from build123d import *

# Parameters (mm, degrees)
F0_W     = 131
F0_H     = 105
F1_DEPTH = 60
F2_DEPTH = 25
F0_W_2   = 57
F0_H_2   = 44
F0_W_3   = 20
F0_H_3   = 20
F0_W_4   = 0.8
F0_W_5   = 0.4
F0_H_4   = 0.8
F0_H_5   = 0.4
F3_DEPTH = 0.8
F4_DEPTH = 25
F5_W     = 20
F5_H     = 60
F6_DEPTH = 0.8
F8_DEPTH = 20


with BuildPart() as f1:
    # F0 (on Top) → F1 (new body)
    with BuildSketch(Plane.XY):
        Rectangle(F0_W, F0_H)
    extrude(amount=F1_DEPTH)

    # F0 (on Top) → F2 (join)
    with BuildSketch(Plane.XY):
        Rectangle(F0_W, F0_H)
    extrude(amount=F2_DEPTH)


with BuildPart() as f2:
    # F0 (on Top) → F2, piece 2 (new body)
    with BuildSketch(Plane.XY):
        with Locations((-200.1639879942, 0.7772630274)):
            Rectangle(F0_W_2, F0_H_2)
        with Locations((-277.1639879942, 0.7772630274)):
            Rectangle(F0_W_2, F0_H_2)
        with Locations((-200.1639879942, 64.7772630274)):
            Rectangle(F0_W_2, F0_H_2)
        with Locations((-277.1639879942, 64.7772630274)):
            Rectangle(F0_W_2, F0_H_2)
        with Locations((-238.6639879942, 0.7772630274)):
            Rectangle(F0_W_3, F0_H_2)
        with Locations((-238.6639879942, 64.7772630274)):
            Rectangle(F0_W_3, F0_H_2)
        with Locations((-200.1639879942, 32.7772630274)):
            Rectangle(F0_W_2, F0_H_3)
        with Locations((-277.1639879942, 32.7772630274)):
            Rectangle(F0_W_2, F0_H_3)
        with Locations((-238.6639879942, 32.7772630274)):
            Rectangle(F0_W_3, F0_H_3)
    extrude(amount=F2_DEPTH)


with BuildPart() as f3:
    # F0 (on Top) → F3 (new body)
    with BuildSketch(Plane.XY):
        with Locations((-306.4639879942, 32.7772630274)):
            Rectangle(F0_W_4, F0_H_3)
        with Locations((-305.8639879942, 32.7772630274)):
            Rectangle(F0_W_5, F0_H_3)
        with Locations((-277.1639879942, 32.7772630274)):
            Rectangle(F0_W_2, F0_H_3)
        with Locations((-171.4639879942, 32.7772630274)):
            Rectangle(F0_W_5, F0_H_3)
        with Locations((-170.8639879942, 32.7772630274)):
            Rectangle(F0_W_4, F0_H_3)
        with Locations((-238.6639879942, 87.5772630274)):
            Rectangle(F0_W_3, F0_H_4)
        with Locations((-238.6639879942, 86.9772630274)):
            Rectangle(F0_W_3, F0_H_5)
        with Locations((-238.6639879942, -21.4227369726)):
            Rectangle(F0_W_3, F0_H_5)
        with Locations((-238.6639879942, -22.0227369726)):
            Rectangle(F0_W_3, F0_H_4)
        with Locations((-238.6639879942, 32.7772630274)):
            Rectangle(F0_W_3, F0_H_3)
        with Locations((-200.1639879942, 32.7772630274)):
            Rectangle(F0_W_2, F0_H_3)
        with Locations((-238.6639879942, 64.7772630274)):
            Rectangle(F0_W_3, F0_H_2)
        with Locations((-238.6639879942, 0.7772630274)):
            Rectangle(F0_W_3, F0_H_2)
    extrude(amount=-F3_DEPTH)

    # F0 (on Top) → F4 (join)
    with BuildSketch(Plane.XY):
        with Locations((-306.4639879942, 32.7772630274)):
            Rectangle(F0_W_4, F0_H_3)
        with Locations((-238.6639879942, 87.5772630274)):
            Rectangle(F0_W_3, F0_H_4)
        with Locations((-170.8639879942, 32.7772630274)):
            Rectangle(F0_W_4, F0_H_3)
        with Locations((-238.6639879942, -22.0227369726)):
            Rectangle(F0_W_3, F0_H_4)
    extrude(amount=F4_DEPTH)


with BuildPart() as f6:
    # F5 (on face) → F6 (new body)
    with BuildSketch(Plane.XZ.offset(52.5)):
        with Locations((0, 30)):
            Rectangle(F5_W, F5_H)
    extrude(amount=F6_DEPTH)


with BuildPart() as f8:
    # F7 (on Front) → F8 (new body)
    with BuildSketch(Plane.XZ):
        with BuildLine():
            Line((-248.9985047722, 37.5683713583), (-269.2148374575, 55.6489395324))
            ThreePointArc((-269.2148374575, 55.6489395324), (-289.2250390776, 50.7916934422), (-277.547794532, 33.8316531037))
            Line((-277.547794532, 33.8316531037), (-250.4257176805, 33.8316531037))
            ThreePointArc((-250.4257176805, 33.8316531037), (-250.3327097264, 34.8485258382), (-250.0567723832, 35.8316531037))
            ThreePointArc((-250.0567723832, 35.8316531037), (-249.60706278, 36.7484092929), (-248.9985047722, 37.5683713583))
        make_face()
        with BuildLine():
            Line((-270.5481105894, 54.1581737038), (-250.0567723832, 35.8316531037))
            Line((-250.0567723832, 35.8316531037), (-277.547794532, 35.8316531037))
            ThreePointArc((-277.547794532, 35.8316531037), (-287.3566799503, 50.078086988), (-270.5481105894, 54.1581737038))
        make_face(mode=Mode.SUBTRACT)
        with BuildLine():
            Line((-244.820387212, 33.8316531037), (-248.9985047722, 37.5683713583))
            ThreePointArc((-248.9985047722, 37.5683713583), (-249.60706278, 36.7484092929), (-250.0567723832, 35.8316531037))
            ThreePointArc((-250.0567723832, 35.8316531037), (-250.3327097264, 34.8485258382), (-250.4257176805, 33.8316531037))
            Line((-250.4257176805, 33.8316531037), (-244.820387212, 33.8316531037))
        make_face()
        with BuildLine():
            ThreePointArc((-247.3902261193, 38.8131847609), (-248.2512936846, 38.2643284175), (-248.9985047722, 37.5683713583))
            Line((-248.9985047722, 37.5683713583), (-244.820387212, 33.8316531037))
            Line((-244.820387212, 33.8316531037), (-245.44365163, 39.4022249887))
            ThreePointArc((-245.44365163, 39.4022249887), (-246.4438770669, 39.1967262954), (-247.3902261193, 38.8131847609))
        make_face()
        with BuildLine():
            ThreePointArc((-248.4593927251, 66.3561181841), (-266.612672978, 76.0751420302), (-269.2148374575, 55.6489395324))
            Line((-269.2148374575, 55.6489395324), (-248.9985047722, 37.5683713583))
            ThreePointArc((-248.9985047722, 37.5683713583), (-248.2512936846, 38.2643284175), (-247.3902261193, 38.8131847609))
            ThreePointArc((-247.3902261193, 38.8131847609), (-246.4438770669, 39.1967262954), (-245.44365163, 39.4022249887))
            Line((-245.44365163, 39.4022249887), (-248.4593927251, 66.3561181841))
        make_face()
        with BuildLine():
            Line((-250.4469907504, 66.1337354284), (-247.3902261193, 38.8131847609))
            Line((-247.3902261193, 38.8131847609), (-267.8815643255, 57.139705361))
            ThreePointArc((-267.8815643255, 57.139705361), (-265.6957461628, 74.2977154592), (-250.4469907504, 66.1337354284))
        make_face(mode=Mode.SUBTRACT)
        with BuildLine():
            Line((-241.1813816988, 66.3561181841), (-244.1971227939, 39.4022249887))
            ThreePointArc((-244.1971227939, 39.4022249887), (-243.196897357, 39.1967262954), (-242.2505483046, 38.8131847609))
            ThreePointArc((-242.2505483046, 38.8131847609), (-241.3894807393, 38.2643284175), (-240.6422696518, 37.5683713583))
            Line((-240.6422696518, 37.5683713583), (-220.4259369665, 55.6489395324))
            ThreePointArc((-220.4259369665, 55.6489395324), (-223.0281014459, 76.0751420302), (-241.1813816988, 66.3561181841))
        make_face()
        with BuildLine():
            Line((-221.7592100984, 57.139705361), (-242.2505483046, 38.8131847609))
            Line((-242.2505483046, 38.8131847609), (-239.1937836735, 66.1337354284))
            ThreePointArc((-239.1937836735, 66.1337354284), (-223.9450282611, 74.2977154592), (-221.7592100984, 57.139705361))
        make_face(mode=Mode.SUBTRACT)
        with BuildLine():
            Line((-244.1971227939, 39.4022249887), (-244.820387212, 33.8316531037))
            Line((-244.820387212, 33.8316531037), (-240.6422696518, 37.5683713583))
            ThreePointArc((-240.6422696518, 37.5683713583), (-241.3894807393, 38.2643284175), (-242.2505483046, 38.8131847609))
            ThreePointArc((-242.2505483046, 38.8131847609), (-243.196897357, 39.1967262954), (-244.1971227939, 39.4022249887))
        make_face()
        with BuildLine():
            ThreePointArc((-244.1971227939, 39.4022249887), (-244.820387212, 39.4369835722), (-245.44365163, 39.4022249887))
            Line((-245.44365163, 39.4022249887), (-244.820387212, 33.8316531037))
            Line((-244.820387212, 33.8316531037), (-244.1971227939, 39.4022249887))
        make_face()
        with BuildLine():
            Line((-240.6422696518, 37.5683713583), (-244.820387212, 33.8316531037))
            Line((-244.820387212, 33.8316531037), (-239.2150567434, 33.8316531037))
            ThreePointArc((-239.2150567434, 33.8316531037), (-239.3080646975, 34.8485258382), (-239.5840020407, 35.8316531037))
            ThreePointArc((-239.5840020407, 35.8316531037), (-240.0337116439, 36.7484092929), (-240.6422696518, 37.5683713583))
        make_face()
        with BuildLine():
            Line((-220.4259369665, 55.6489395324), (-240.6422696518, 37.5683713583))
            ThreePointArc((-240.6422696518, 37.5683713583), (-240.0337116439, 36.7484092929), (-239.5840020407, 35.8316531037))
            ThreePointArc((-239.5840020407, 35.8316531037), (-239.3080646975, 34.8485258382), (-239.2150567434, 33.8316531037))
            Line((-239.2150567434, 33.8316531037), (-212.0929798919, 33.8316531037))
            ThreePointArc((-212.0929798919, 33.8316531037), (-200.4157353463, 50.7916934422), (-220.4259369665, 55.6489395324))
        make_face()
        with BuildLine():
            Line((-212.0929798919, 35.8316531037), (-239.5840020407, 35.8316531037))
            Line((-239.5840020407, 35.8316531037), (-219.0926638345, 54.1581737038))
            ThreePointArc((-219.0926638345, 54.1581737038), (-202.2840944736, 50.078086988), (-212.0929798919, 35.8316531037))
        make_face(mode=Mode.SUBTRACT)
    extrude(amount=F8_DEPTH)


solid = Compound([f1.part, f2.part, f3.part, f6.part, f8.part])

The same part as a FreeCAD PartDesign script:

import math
import FreeCAD as App
import Part
import Sketcher

V = App.Vector


def add_polygon(sketch, points):
    """Adds a closed chain of lines whose ends are joined by coincident constraints."""
    first, n = sketch.GeometryCount, len(points)
    for a, b in zip(points, points[1:] + points[:1]):
        sketch.addGeometry(Part.LineSegment(App.Vector(*a, 0), App.Vector(*b, 0)), False)
    for i in range(n):
        sketch.addConstraint(Sketcher.Constraint("Coincident", first + i, 2, first + (i + 1) % n, 1))

doc = App.newDocument("Part")
params = doc.addObject("Spreadsheet::Sheet", "Params")
for row, (alias, value) in enumerate([
    ("sketch1_width", "131 mm"),
    ("sketch1_height", "105 mm"),
    ("pad1_length", "60 mm"),
    ("sketch2_width", "131 mm"),
    ("sketch2_height", "105 mm"),
    ("pad2_length", "25 mm"),
    ("sketch3_width", "134 mm"),
    ("sketch3_height", "108 mm"),
    ("pad3_length", "25 mm"),
    ("sketch4_width", "20 mm"),
    ("sketch4_width2", "58.2 mm"),
    ("sketch4_height", "45.2 mm"),
    ("pad4_length", "0.8 mm"),
    ("sketch5_width", "20 mm"),
    ("sketch5_width2", "0.8 mm"),
    ("pad5_length", "25 mm"),
    ("sketch6_width", "20 mm"),
    ("sketch6_height", "60 mm"),
    ("pad6_length", "0.8 mm"),
    ("sketch7_radius", "12.5 mm"),
    ("sketch7_radius2", "10.5 mm"),
    ("pad7_length", "20 mm"),
], start=1):
    params.set(f"A{row}", alias)
    params.set(f"B{row}", "=" + value)
    params.setAlias(f"B{row}", alias)

body = doc.addObject("PartDesign::Body", "Body")

# Sketch on XY plane
sketch1 = doc.addObject("Sketcher::SketchObject", "Sketch")
body.addObject(sketch1)
sketch1.AttachmentSupport = (doc.XY_Plane, [""])
sketch1.MapMode = "FlatFace"
add_polygon(sketch1, [(-66, 52), (-66, -52), (66, -52), (66, 52)])  # lines 0-3
sketch1.addConstraint(Sketcher.Constraint("Vertical", 0))
sketch1.addConstraint(Sketcher.Constraint("Horizontal", 1))
sketch1.addConstraint(Sketcher.Constraint("Vertical", 2))
sketch1.addConstraint(Sketcher.Constraint("Horizontal", 3))
sketch1.addConstraint(Sketcher.Constraint("Symmetric", 0, 2, 2, 2, -1, 1))
sketch1.addConstraint(Sketcher.Constraint("DistanceX", 1, 1, 1, 2, 131.0))
sketch1.addConstraint(Sketcher.Constraint("DistanceY", 0, 2, 0, 1, 105.0))
sketch1.setExpression("Constraints[9]", "Params.sketch1_width")
sketch1.setExpression("Constraints[10]", "Params.sketch1_height")
pad1 = doc.addObject("PartDesign::Pad", "Pad")
body.addObject(pad1)
pad1.Profile = sketch1
pad1.setExpression("Length", "Params.pad1_length")

# Sketch on XY plane
sketch2 = doc.addObject("Sketcher::SketchObject", "Sketch001")
body.addObject(sketch2)
sketch2.AttachmentSupport = (doc.XY_Plane, [""])
sketch2.MapMode = "FlatFace"
add_polygon(sketch2, [(-66, 52), (-66, -52), (66, -52), (66, 52)])  # lines 0-3
sketch2.addConstraint(Sketcher.Constraint("Vertical", 0))
sketch2.addConstraint(Sketcher.Constraint("Horizontal", 1))
sketch2.addConstraint(Sketcher.Constraint("Vertical", 2))
sketch2.addConstraint(Sketcher.Constraint("Horizontal", 3))
sketch2.addConstraint(Sketcher.Constraint("Symmetric", 0, 2, 2, 2, -1, 1))
sketch2.addConstraint(Sketcher.Constraint("DistanceX", 1, 1, 1, 2, 131.0))
sketch2.addConstraint(Sketcher.Constraint("DistanceY", 0, 2, 0, 1, 105.0))
sketch2.setExpression("Constraints[9]", "Params.sketch2_width")
sketch2.setExpression("Constraints[10]", "Params.sketch2_height")
pad2 = doc.addObject("PartDesign::Pad", "Pad001")
body.addObject(pad2)
pad2.Profile = sketch2
pad2.setExpression("Length", "Params.pad2_length")
body2 = doc.addObject("PartDesign::Body", "Body001")

# Sketch on XY plane
sketch3 = doc.addObject("Sketcher::SketchObject", "Sketch002")
body2.addObject(sketch3)
sketch3.AttachmentSupport = (doc.getObject("XY_Plane001"), [""])
sketch3.MapMode = "FlatFace"
add_polygon(sketch3, [(-172, -21), (-172, 87), (-306, 87), (-306, -21)])  # lines 0-3
sketch3.addConstraint(Sketcher.Constraint("Vertical", 0))
sketch3.addConstraint(Sketcher.Constraint("Horizontal", 1))
sketch3.addConstraint(Sketcher.Constraint("Vertical", 2))
sketch3.addConstraint(Sketcher.Constraint("Horizontal", 3))
sketch3.addConstraint(Sketcher.Constraint("DistanceX", 1, 2, 1, 1, 134.0))
sketch3.addConstraint(Sketcher.Constraint("DistanceY", 0, 1, 0, 2, 108.0))
sketch3.addConstraint(Sketcher.Constraint("DistanceX", 0, 2, -1, 1, 171.663988))
sketch3.addConstraint(Sketcher.Constraint("DistanceY", -1, 1, 0, 2, 86.777263))
sketch3.setExpression("Constraints[8]", "Params.sketch3_width")
sketch3.setExpression("Constraints[9]", "Params.sketch3_height")
pad3 = doc.addObject("PartDesign::Pad", "Pad002")
body2.addObject(pad3)
pad3.Profile = sketch3
pad3.setExpression("Length", "Params.pad3_length")
body3 = doc.addObject("PartDesign::Body", "Body002")

# Sketch on XY plane
sketch4 = doc.addObject("Sketcher::SketchObject", "Sketch003")
body3.addObject(sketch4)
sketch4.AttachmentSupport = (doc.getObject("XY_Plane002"), [""])
sketch4.MapMode = "FlatFace"
add_polygon(sketch4, [(-307, 43), (-307, 23), (-249, 23), (-249, -22), (-229, -22), (-229, 23), (-170, 23), (-170, 43), (-229, 43), (-229, 88), (-249, 88), (-249, 43)])  # lines 0-11
sketch4.addConstraint(Sketcher.Constraint("Vertical", 0))
sketch4.addConstraint(Sketcher.Constraint("Horizontal", 1))
sketch4.addConstraint(Sketcher.Constraint("Vertical", 2))
sketch4.addConstraint(Sketcher.Constraint("Horizontal", 3))
sketch4.addConstraint(Sketcher.Constraint("Vertical", 4))
sketch4.addConstraint(Sketcher.Constraint("Horizontal", 5))
sketch4.addConstraint(Sketcher.Constraint("Vertical", 6))
sketch4.addConstraint(Sketcher.Constraint("Horizontal", 7))
sketch4.addConstraint(Sketcher.Constraint("Vertical", 8))
sketch4.addConstraint(Sketcher.Constraint("Horizontal", 9))
sketch4.addConstraint(Sketcher.Constraint("Vertical", 10))
sketch4.addConstraint(Sketcher.Constraint("Horizontal", 11))
sketch4.addConstraint(Sketcher.Constraint("Horizontal", 1, 2, 4, 2))
sketch4.addConstraint(Sketcher.Constraint("Horizontal", 7, 2, 10, 2))
sketch4.addConstraint(Sketcher.Constraint("Vertical", 4, 2, 7, 2))
sketch4.addConstraint(Sketcher.Constraint("Vertical", 2, 2, 9, 2))
sketch4.addConstraint(Sketcher.Constraint("Equal", 1, 5))
sketch4.addConstraint(Sketcher.Constraint("Equal", 9, 0))
sketch4.addConstraint(Sketcher.Constraint("Equal", 4, 8))
sketch4.addConstraint(Sketcher.Constraint("DistanceX", 3, 1, 3, 2, 20.0))
sketch4.addConstraint(Sketcher.Constraint("DistanceX", 1, 1, 1, 2, 58.2))
sketch4.addConstraint(Sketcher.Constraint("DistanceY", 2, 2, 2, 1, 45.2))
sketch4.addConstraint(Sketcher.Constraint("DistanceX", 0, 2, -1, 1, 306.863988))
sketch4.addConstraint(Sketcher.Constraint("DistanceY", -1, 1, 0, 2, 22.777263))
sketch4.setExpression("Constraints[31]", "Params.sketch4_width")
sketch4.setExpression("Constraints[32]", "Params.sketch4_width2")
sketch4.setExpression("Constraints[33]", "Params.sketch4_height")
pad4 = doc.addObject("PartDesign::Pad", "Pad003")
body3.addObject(pad4)
pad4.Profile = sketch4
pad4.setExpression("Length", "Params.pad4_length")
pad4.Reversed = True

# Sketch on XY plane
sketch5 = doc.addObject("Sketcher::SketchObject", "Sketch004")
body3.addObject(sketch5)
sketch5.AttachmentSupport = (doc.getObject("XY_Plane002"), [""])
sketch5.MapMode = "FlatFace"
add_polygon(sketch5, [(-306.9, 42.8), (-306.9, 22.8), (-306.1, 22.8), (-306.1, 42.8)])  # lines 0-3
add_polygon(sketch5, [(-248.7, 88), (-248.7, 87.2), (-228.7, 87.2), (-228.7, 88)])  # lines 4-7
add_polygon(sketch5, [(-171.3, 42.8), (-171.3, 22.8), (-170.5, 22.8), (-170.5, 42.8)])  # lines 8-11
add_polygon(sketch5, [(-248.7, -21.6), (-248.7, -22.4), (-228.7, -22.4), (-228.7, -21.6)])  # lines 12-15
sketch5.addConstraint(Sketcher.Constraint("Vertical", 0))
sketch5.addConstraint(Sketcher.Constraint("Horizontal", 1))
sketch5.addConstraint(Sketcher.Constraint("Vertical", 2))
sketch5.addConstraint(Sketcher.Constraint("Horizontal", 3))
sketch5.addConstraint(Sketcher.Constraint("Vertical", 4))
sketch5.addConstraint(Sketcher.Constraint("Horizontal", 5))
sketch5.addConstraint(Sketcher.Constraint("Vertical", 6))
sketch5.addConstraint(Sketcher.Constraint("Horizontal", 7))
sketch5.addConstraint(Sketcher.Constraint("Vertical", 8))
sketch5.addConstraint(Sketcher.Constraint("Horizontal", 9))
sketch5.addConstraint(Sketcher.Constraint("Vertical", 10))
sketch5.addConstraint(Sketcher.Constraint("Horizontal", 11))
sketch5.addConstraint(Sketcher.Constraint("Vertical", 12))
sketch5.addConstraint(Sketcher.Constraint("Horizontal", 13))
sketch5.addConstraint(Sketcher.Constraint("Vertical", 14))
sketch5.addConstraint(Sketcher.Constraint("Horizontal", 15))
sketch5.addConstraint(Sketcher.Constraint("Horizontal", 1, 2, 8, 2))
sketch5.addConstraint(Sketcher.Constraint("Horizontal", 3, 2, 10, 2))
sketch5.addConstraint(Sketcher.Constraint("Vertical", 7, 2, 12, 2))
sketch5.addConstraint(Sketcher.Constraint("Vertical", 6, 2, 13, 2))
sketch5.addConstraint(Sketcher.Constraint("Equal", 3, 9))
sketch5.addConstraint(Sketcher.Constraint("Equal", 15, 0))
sketch5.addConstraint(Sketcher.Constraint("Equal", 11, 4))
sketch5.addConstraint(Sketcher.Constraint("Equal", 6, 12))
sketch5.addConstraint(Sketcher.Constraint("DistanceX", 5, 1, 5, 2, 20.0))
sketch5.addConstraint(Sketcher.Constraint("DistanceX", 1, 1, 1, 2, 0.8))
sketch5.addConstraint(Sketcher.Constraint("DistanceX", 2, 2, 4, 2, 57.4))
sketch5.addConstraint(Sketcher.Constraint("DistanceY", 2, 2, 4, 2, 44.4))
sketch5.addConstraint(Sketcher.Constraint("DistanceX", 5, 2, 8, 2, 57.4))
sketch5.addConstraint(Sketcher.Constraint("DistanceY", 12, 2, 1, 2, 45.2))
sketch5.addConstraint(Sketcher.Constraint("DistanceX", 0, 2, -1, 1, 306.863988))
sketch5.addConstraint(Sketcher.Constraint("DistanceY", -1, 1, 0, 2, 22.777263))
sketch5.setExpression("Constraints[40]", "Params.sketch5_width")
sketch5.setExpression("Constraints[41]", "Params.sketch5_width2")
pad5 = doc.addObject("PartDesign::Pad", "Pad004")
body3.addObject(pad5)
pad5.Profile = sketch5
pad5.setExpression("Length", "Params.pad5_length")
body4 = doc.addObject("PartDesign::Body", "Body003")

# Sketch on XZ plane
sketch6 = doc.addObject("Sketcher::SketchObject", "Sketch005")
body4.addObject(sketch6)
sketch6.AttachmentSupport = (doc.getObject("XZ_Plane003"), [""])
sketch6.MapMode = "FlatFace"
sketch6.AttachmentOffset = App.Placement(V(0, 0, 52.5), App.Rotation())
add_polygon(sketch6, [(-10, 60), (-10, 0), (10, 0), (10, 60)])  # lines 0-3
sketch6.addConstraint(Sketcher.Constraint("Vertical", 0))
sketch6.addConstraint(Sketcher.Constraint("Horizontal", 1))
sketch6.addConstraint(Sketcher.Constraint("Vertical", 2))
sketch6.addConstraint(Sketcher.Constraint("Horizontal", 3))
sketch6.addConstraint(Sketcher.Constraint("Symmetric", 0, 2, 1, 2, -1, 1))
sketch6.addConstraint(Sketcher.Constraint("DistanceX", 1, 1, 1, 2, 20.0))
sketch6.addConstraint(Sketcher.Constraint("DistanceY", 0, 2, 0, 1, 60.0))
sketch6.setExpression("Constraints[9]", "Params.sketch6_width")
sketch6.setExpression("Constraints[10]", "Params.sketch6_height")
pad6 = doc.addObject("PartDesign::Pad", "Pad005")
body4.addObject(pad6)
pad6.Profile = sketch6
pad6.setExpression("Length", "Params.pad6_length")
body5 = doc.addObject("PartDesign::Body", "Body004")

# Sketch on XZ plane
sketch7 = doc.addObject("Sketcher::SketchObject", "Sketch006")
body5.addObject(sketch7)
sketch7.AttachmentSupport = (doc.getObject("XZ_Plane004"), [""])
sketch7.MapMode = "FlatFace"
sketch7.addGeometry(Part.LineSegment(V(-277.5, 33.8, 0), V(-212.1, 33.8, 0)), False)
sketch7.addGeometry(Part.ArcOfCircle(Part.Circle(V(-212.1, 46.3, 0), V(0, 0, 1), 12.5), math.radians(-90), math.radians(132)), False)
sketch7.addGeometry(Part.ArcOfCircle(Part.Circle(V(-228.8, 65, 0), V(0, 0, 1), 12.5), math.radians(-48), math.radians(174)), False)
sketch7.addGeometry(Part.LineSegment(V(-241.2, 66.4, 0), V(-244.2, 39.4, 0)), False)
sketch7.addGeometry(Part.ArcOfCircle(Part.Circle(V(-244.8, 33.8, 0), V(0, 0, 1), 5.6), math.radians(83.62), math.radians(96.38)), False)
sketch7.addGeometry(Part.LineSegment(V(-245.4, 39.4, 0), V(-248.5, 66.4, 0)), False)
sketch7.addGeometry(Part.ArcOfCircle(Part.Circle(V(-260.9, 65, 0), V(0, 0, 1), 12.5), math.radians(6), math.radians(228)), False)
sketch7.addGeometry(Part.ArcOfCircle(Part.Circle(V(-277.5, 46.3, 0), V(0, 0, 1), 12.5), math.radians(48), math.radians(270)), False)
sketch7.addGeometry(Part.LineSegment(V(-270.5, 54.2, 0), V(-250.1, 35.8, 0)), False)
sketch7.addGeometry(Part.LineSegment(V(-250.1, 35.8, 0), V(-277.5, 35.8, 0)), False)
sketch7.addGeometry(Part.ArcOfCircle(Part.Circle(V(-277.5, 46.3, 0), V(0, 0, 1), 10.5), math.radians(48), math.radians(270)), False)
sketch7.addGeometry(Part.ArcOfCircle(Part.Circle(V(-212.1, 46.3, 0), V(0, 0, 1), 10.5), math.radians(-90), math.radians(132)), False)
sketch7.addGeometry(Part.LineSegment(V(-212.1, 35.8, 0), V(-239.6, 35.8, 0)), False)
sketch7.addGeometry(Part.LineSegment(V(-239.6, 35.8, 0), V(-219.1, 54.2, 0)), False)
sketch7.addGeometry(Part.ArcOfCircle(Part.Circle(V(-260.9, 65, 0), V(0, 0, 1), 10.5), math.radians(6), math.radians(228)), False)
sketch7.addGeometry(Part.LineSegment(V(-250.4, 66.1, 0), V(-247.4, 38.8, 0)), False)
sketch7.addGeometry(Part.LineSegment(V(-247.4, 38.8, 0), V(-267.9, 57.1, 0)), False)
sketch7.addGeometry(Part.ArcOfCircle(Part.Circle(V(-228.8, 65, 0), V(0, 0, 1), 10.5), math.radians(-48), math.radians(174)), False)
sketch7.addGeometry(Part.LineSegment(V(-221.8, 57.1, 0), V(-242.3, 38.8, 0)), False)
sketch7.addGeometry(Part.LineSegment(V(-242.3, 38.8, 0), V(-239.2, 66.1, 0)), False)
sketch7.addConstraint(Sketcher.Constraint("Tangent", 0, 2, 1, 1))
sketch7.addConstraint(Sketcher.Constraint("Tangent", 1, 2, 2, 1))
sketch7.addConstraint(Sketcher.Constraint("Tangent", 2, 2, 3, 1))
sketch7.addConstraint(Sketcher.Constraint("Coincident", 3, 2, 4, 1))
sketch7.addConstraint(Sketcher.Constraint("Coincident", 4, 2, 5, 1))
sketch7.addConstraint(Sketcher.Constraint("Tangent", 5, 2, 6, 1))
sketch7.addConstraint(Sketcher.Constraint("Tangent", 6, 2, 7, 1))
sketch7.addConstraint(Sketcher.Constraint("Tangent", 7, 2, 0, 1))
sketch7.addConstraint(Sketcher.Constraint("Coincident", 8, 2, 9, 1))
sketch7.addConstraint(Sketcher.Constraint("Tangent", 9, 2, 10, 2))
sketch7.addConstraint(Sketcher.Constraint("Tangent", 10, 1, 8, 1))
sketch7.addConstraint(Sketcher.Constraint("Tangent", 11, 1, 12, 1))
sketch7.addConstraint(Sketcher.Constraint("Coincident", 12, 2, 13, 1))
sketch7.addConstraint(Sketcher.Constraint("Tangent", 13, 2, 11, 2))
sketch7.addConstraint(Sketcher.Constraint("Tangent", 14, 1, 15, 1))
sketch7.addConstraint(Sketcher.Constraint("Coincident", 15, 2, 16, 1))
sketch7.addConstraint(Sketcher.Constraint("Tangent", 16, 2, 14, 2))
sketch7.addConstraint(Sketcher.Constraint("Tangent", 17, 1, 18, 1))
sketch7.addConstraint(Sketcher.Constraint("Coincident", 18, 2, 19, 1))
sketch7.addConstraint(Sketcher.Constraint("Tangent", 19, 2, 17, 2))
sketch7.addConstraint(Sketcher.Constraint("Horizontal", 0))
sketch7.addConstraint(Sketcher.Constraint("Horizontal", 9))
sketch7.addConstraint(Sketcher.Constraint("Horizontal", 12))
sketch7.addConstraint(Sketcher.Constraint("Coincident", 10, 3, 7, 3))
sketch7.addConstraint(Sketcher.Constraint("Coincident", 11, 3, 1, 3))
sketch7.addConstraint(Sketcher.Constraint("Coincident", 14, 3, 6, 3))
sketch7.addConstraint(Sketcher.Constraint("Coincident", 17, 3, 2, 3))
sketch7.addConstraint(Sketcher.Constraint("Equal", 1, 2))
sketch7.addConstraint(Sketcher.Constraint("Equal", 2, 6))
sketch7.addConstraint(Sketcher.Constraint("Equal", 6, 7))
sketch7.addConstraint(Sketcher.Constraint("Equal", 10, 11))
sketch7.addConstraint(Sketcher.Constraint("Equal", 11, 14))
sketch7.addConstraint(Sketcher.Constraint("Equal", 14, 17))
sketch7.addConstraint(Sketcher.Constraint("Parallel", 5, 15))
sketch7.addConstraint(Sketcher.Constraint("Parallel", 8, 16))
sketch7.addConstraint(Sketcher.Constraint("Parallel", 13, 18))
sketch7.addConstraint(Sketcher.Constraint("Parallel", 3, 19))
sketch7.addConstraint(Sketcher.Constraint("Horizontal", 2, 3, 6, 3))
sketch7.addConstraint(Sketcher.Constraint("Horizontal", 4, 3, 0, 2))
sketch7.addConstraint(Sketcher.Constraint("Horizontal", 3, 2, 4, 2))
sketch7.addConstraint(Sketcher.Constraint("Horizontal", 2, 2, 5, 2))
sketch7.addConstraint(Sketcher.Constraint("Horizontal", 10, 1, 13, 2))
sketch7.addConstraint(Sketcher.Constraint("Equal", 13, 15))
sketch7.addConstraint(Sketcher.Constraint("Radius", 1, 12.5))
sketch7.addConstraint(Sketcher.Constraint("Radius", 10, 10.5))
sketch7.addConstraint(Sketcher.Constraint("Radius", 4, 5.60533))
sketch7.addConstraint(Sketcher.Constraint("DistanceY", 3, 2, 2, 3, 25.564001))
sketch7.addConstraint(Sketcher.Constraint("DistanceX", 6, 3, 1, 3, 48.7889))
sketch7.addConstraint(Sketcher.Constraint("DistanceX", 6, 3, 2, 2, 19.700499))
sketch7.addConstraint(Sketcher.Constraint("DistanceX", 1, 3, -1, 1, 212.09298))
sketch7.addConstraint(Sketcher.Constraint("DistanceY", -1, 1, 1, 2, 55.64894))
sketch7.setExpression("Constraints[43]", "Params.sketch7_radius")
sketch7.setExpression("Constraints[44]", "Params.sketch7_radius2")
pad7 = doc.addObject("PartDesign::Pad", "Pad006")
body5.addObject(pad7)
pad7.Profile = sketch7
pad7.setExpression("Length", "Params.pad7_length")

doc.recompute()
